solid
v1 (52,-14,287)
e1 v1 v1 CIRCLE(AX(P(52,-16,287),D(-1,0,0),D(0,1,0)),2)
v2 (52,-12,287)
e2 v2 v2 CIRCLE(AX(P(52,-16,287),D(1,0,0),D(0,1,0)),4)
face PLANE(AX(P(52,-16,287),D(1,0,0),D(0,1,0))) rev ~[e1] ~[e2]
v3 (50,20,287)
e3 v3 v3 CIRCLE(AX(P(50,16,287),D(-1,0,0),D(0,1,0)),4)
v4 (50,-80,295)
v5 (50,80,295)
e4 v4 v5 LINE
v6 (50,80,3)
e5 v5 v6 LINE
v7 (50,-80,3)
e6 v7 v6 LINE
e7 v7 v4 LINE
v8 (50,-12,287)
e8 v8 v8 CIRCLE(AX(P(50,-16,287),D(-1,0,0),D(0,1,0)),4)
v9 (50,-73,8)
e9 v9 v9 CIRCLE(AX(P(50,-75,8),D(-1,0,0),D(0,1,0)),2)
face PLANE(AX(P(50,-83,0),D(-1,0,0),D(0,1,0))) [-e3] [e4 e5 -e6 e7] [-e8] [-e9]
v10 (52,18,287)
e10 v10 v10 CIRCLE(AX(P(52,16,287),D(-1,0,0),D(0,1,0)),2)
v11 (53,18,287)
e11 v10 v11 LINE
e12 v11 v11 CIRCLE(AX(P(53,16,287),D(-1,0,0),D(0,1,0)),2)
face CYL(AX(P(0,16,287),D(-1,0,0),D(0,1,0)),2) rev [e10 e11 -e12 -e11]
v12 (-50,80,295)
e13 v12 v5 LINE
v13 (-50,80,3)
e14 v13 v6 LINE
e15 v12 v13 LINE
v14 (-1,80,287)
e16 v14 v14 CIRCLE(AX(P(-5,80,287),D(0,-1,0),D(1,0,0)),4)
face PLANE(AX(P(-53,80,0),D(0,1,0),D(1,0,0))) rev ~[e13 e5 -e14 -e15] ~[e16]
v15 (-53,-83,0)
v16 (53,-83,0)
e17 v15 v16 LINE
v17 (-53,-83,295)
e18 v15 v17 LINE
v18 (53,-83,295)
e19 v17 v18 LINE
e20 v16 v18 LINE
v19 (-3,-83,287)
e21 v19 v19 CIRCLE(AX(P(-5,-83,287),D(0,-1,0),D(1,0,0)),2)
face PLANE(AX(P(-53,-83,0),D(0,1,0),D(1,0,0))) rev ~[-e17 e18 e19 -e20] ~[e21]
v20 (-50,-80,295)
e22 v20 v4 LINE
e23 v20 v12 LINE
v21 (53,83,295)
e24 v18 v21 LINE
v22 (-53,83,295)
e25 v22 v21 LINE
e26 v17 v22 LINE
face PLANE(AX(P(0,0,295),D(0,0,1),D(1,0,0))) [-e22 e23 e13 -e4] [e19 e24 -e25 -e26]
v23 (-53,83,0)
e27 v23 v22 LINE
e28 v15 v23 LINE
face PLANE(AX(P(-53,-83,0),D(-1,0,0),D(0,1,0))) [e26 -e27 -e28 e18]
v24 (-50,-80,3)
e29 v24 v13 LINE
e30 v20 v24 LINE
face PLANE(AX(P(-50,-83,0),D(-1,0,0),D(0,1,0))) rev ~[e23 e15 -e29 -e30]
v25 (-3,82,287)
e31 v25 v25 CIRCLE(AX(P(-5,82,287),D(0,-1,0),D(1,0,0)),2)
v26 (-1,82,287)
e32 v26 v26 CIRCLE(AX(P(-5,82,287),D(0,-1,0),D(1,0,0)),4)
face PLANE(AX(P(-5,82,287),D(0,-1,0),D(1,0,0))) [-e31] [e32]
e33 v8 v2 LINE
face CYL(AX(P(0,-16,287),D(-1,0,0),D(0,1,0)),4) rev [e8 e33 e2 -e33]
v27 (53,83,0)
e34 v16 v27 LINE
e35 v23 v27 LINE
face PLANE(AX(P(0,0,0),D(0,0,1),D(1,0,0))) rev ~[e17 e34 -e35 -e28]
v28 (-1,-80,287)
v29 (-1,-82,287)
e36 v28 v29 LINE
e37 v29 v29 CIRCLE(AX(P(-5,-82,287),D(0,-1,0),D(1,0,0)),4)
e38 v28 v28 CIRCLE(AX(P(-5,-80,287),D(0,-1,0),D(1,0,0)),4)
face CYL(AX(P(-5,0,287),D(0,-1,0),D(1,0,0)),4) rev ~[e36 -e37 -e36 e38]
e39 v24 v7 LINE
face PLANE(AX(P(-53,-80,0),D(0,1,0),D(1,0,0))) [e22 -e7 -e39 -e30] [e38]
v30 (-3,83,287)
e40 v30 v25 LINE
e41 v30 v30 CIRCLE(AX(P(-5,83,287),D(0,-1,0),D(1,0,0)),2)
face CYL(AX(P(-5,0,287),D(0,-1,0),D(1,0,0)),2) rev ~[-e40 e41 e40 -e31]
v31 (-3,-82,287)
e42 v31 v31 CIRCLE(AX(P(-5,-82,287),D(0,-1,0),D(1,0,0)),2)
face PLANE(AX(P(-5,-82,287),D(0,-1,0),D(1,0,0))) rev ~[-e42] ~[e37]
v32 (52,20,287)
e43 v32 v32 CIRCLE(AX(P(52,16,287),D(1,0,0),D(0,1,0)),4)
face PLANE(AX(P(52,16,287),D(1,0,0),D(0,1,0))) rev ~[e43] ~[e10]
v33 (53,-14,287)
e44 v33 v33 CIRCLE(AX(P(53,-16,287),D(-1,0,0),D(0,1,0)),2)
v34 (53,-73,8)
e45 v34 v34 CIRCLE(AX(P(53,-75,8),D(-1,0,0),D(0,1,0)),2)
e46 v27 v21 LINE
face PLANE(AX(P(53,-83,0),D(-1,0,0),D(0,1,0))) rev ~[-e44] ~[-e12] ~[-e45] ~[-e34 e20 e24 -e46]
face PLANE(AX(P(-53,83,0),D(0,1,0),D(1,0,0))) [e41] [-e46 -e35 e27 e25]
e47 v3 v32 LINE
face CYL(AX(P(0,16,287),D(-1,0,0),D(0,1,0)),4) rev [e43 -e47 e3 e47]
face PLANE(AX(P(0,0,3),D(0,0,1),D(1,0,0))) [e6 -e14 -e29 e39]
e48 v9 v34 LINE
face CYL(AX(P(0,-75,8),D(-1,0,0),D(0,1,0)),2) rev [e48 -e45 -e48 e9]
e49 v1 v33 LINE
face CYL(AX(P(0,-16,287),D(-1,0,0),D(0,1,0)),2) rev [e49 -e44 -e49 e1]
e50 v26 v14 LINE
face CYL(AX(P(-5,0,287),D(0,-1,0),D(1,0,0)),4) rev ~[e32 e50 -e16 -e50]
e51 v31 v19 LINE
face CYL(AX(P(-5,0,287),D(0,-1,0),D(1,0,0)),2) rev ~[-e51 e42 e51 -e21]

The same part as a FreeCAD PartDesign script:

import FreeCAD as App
import Part
import Sketcher

V = App.Vector


def faces_at(feature, points):
    """Names of the faces that lie closest to the given points."""
    faces = feature.Shape.Faces
    near = lambda p: min(range(len(faces)), key=lambda i: faces[i].distToShape(Part.Vertex(*p))[0])
    return sorted({f"Face{near(p) + 1}" for p in points})


def add_polygon(sketch, points):
    """Adds a closed chain of lines whose ends are joined by coincident constraints."""
    first, n = sketch.GeometryCount, len(points)
    for a, b in zip(points, points[1:] + points[:1]):
        sketch.addGeometry(Part.LineSegment(App.Vector(*a, 0), App.Vector(*b, 0)), False)
    for i in range(n):
        sketch.addConstraint(Sketcher.Constraint("Coincident", first + i, 2, first + (i + 1) % n, 1))

doc = App.newDocument("Part")
body = doc.addObject("PartDesign::Body", "Body")

# Sketch on XY plane
sketch1 = doc.addObject("Sketcher::SketchObject", "Sketch")
body.addObject(sketch1)
sketch1.AttachmentSupport = (doc.XY_Plane, [""])
sketch1.MapMode = "FlatFace"
add_polygon(sketch1, [(-53, 83), (-53, -83), (53, -83), (53, 83)])  # lines 0-3
sketch1.addConstraint(Sketcher.Constraint("Vertical", 0))
sketch1.addConstraint(Sketcher.Constraint("Horizontal", 1))
sketch1.addConstraint(Sketcher.Constraint("Vertical", 2))
sketch1.addConstraint(Sketcher.Constraint("Horizontal", 3))
sketch1.addConstraint(Sketcher.Constraint("Symmetric", 0, 2, 2, 2, -1, 1))
sketch1.addConstraint(Sketcher.Constraint("DistanceX", 1, 1, 1, 2, 106.0))
sketch1.addConstraint(Sketcher.Constraint("DistanceY", 0, 2, 0, 1, 166.0))
pad1 = doc.addObject("PartDesign::Pad", "Pad")
body.addObject(pad1)
pad1.Profile = sketch1
pad1.Length = 295
doc.recompute()

thickness = doc.addObject("PartDesign::Thickness", "Thickness")
body.addObject(thickness)
thickness.Base = (pad1, faces_at(pad1, [(0, 0, 295)]))
thickness.Value = 3
thickness.Reversed = True
thickness.Join = "Arc"

# Sketch on YZ plane
sketch2 = doc.addObject("Sketcher::SketchObject", "Sketch001")
body.addObject(sketch2)
sketch2.AttachmentSupport = (doc.YZ_Plane, [""])
sketch2.MapMode = "FlatFace"
sketch2.addGeometry(Part.Circle(V(-16, 287, 0), V(0, 0, 1), 2), False)
sketch2.addGeometry(Part.Circle(V(16, 287, 0), V(0, 0, 1), 2), False)
sketch2.addGeometry(Part.Circle(V(-75, 8, 0), V(0, 0, 1), 2), False)
sketch2.addConstraint(Sketcher.Constraint("Equal", 0, 1))
sketch2.addConstraint(Sketcher.Constraint("Equal", 1, 2))
sketch2.addConstraint(Sketcher.Constraint("Symmetric", 0, 3, 1, 3, -2))
sketch2.addConstraint(Sketcher.Constraint("Diameter", 0, 4.0))
sketch2.addConstraint(Sketcher.Constraint("DistanceX", 0, 3, -1, 1, 16.0))
sketch2.addConstraint(Sketcher.Constraint("DistanceY", -1, 1, 0, 3, 287.0))
sketch2.addConstraint(Sketcher.Constraint("DistanceX", 2, 3, -1, 1, 75.0))
sketch2.addConstraint(Sketcher.Constraint("DistanceY", -1, 1, 2, 3, 8.0))
pocket1 = doc.addObject("PartDesign::Pocket", "Pocket")
body.addObject(pocket1)
pocket1.Profile = sketch2
pocket1.Length = 150
pocket1.Reversed = True

# Sketch on XZ plane
sketch3 = doc.addObject("Sketcher::SketchObject", "Sketch002")
body.addObject(sketch3)
sketch3.AttachmentSupport = (doc.XZ_Plane, [""])
sketch3.MapMode = "FlatFace"
sketch3.addGeometry(Part.Circle(V(-5, 287, 0), V(0, 0, 1), 2), False)
sketch3.addConstraint(Sketcher.Constraint("Diameter", 0, 4.0))
sketch3.addConstraint(Sketcher.Constraint("DistanceX", 0, 3, -1, 1, 5.0))
sketch3.addConstraint(Sketcher.Constraint("DistanceY", -1, 1, 0, 3, 287.0))
pocket2 = doc.addObject("PartDesign::Pocket", "Pocket001")
body.addObject(pocket2)
pocket2.Profile = sketch3
pocket2.Length = 250
pocket2.Midplane = True

# Sketch on YZ plane
sketch4 = doc.addObject("Sketcher::SketchObject", "Sketch003")
body.addObject(sketch4)
sketch4.AttachmentSupport = (doc.YZ_Plane, [""])
sketch4.MapMode = "FlatFace"
sketch4.addGeometry(Part.Circle(V(-16, 287, 0), V(0, 0, 1), 4), False)
sketch4.addGeometry(Part.Circle(V(16, 287, 0), V(0, 0, 1), 4), False)
sketch4.addConstraint(Sketcher.Constraint("Equal", 0, 1))
sketch4.addConstraint(Sketcher.Constraint("Symmetric", 0, 3, 1, 3, -2))
sketch4.addConstraint(Sketcher.Constraint("Diameter", 0, 8.0))
sketch4.addConstraint(Sketcher.Constraint("DistanceX", 0, 3, -1, 1, 16.0))
sketch4.addConstraint(Sketcher.Constraint("DistanceY", -1, 1, 0, 3, 287.0))
pocket3 = doc.addObject("PartDesign::Pocket", "Pocket002")
body.addObject(pocket3)
pocket3.Profile = sketch4
pocket3.Length = 52
pocket3.Reversed = True

# Sketch on XZ plane
sketch5 = doc.addObject("Sketcher::SketchObject", "Sketch004")
body.addObject(sketch5)
sketch5.AttachmentSupport = (doc.XZ_Plane, [""])
sketch5.MapMode = "FlatFace"
sketch5.addGeometry(Part.Circle(V(-5, 287, 0), V(0, 0, 1), 4), False)
sketch5.addConstraint(Sketcher.Constraint("Diameter", 0, 8.0))
sketch5.addConstraint(Sketcher.Constraint("DistanceX", 0, 3, -1, 1, 5.0))
sketch5.addConstraint(Sketcher.Constraint("DistanceY", -1, 1, 0, 3, 287.0))
pocket4 = doc.addObject("PartDesign::Pocket", "Pocket003")
body.addObject(pocket4)
pocket4.Profile = sketch5
pocket4.Length = 164
pocket4.Midplane = True

doc.recompute()
